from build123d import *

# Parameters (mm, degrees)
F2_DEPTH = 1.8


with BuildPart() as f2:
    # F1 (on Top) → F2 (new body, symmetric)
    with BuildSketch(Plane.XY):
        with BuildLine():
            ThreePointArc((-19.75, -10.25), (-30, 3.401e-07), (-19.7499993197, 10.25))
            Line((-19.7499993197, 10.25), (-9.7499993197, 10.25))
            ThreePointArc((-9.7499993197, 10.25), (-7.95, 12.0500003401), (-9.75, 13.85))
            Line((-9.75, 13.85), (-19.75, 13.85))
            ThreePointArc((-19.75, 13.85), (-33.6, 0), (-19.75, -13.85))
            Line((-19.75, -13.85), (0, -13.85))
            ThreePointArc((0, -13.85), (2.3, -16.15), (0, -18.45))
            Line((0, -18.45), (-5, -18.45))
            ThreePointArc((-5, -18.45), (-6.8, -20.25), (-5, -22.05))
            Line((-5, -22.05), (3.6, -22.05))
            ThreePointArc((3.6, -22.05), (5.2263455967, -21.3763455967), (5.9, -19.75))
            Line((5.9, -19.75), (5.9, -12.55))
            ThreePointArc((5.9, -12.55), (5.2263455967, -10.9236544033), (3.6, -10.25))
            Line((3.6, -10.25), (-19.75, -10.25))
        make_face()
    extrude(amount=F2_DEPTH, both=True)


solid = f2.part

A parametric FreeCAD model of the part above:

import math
import FreeCAD as App
import Part
import Sketcher

V = App.Vector
Q = App.Units.Quantity

doc = App.newDocument("Part")
body = doc.addObject("PartDesign::Body", "Body")

# Sketch on XY plane
sketch1 = body.newObject("Sketcher::SketchObject", "Sketch")
sketch1.AttachmentSupport = (doc.getObject("XY_Plane"), [""])
sketch1.MapMode = "FlatFace"
sketch1.addGeometry([
    Part.ArcOfCircle(Part.Circle(V(-19.8, 0, 0), V(0, 0, 1), 10.2), math.radians(90), math.radians(270)),  # 0
    Part.LineSegment(V(-19.7, 10.2, 0), V(-9.7, 10.2, 0)),  # 1
    Part.ArcOfCircle(Part.Circle(V(-9.8, 12.1, 0), V(0, 0, 1), 1.8), math.radians(-90), math.radians(90)),  # 2
    Part.LineSegment(V(-9.8, 13.8, 0), V(-19.8, 13.8, 0)),  # 3
    Part.ArcOfCircle(Part.Circle(V(-19.8, 0, 0), V(0, 0, 1), 13.8), math.radians(90), math.radians(270)),  # 4
    Part.LineSegment(V(-19.8, -13.8, 0), V(0, -13.8, 0)),  # 5
    Part.ArcOfCircle(Part.Circle(V(0, -16.1, 0), V(0, 0, 1), 2.3), math.radians(-90), math.radians(90)),  # 6
    Part.LineSegment(V(0, -18.4, 0), V(-5, -18.4, 0)),  # 7
    Part.ArcOfCircle(Part.Circle(V(-5, -20.2, 0), V(0, 0, 1), 1.8), math.radians(90), math.radians(270)),  # 8
    Part.LineSegment(V(-5, -22.1, 0), V(3.6, -22.1, 0)),  # 9
    Part.ArcOfCircle(Part.Circle(V(3.6, -19.8, 0), V(0, 0, 1), 2.3), math.radians(-90), math.radians(0)),  # 10
    Part.LineSegment(V(5.9, -19.8, 0), V(5.9, -12.6, 0)),  # 11
    Part.ArcOfCircle(Part.Circle(V(3.6, -12.6, 0), V(0, 0, 1), 2.3), math.radians(0), math.radians(90)),  # 12
    Part.LineSegment(V(3.6, -10.2, 0), V(-19.8, -10.2, 0)),  # 13
], False)
sketch1.addConstraint([
    Sketcher.Constraint("Tangent", 0, 1, 1, 1),
    Sketcher.Constraint("Tangent", 1, 2, 2, 1),
    Sketcher.Constraint("Tangent", 2, 2, 3, 1),
    Sketcher.Constraint("Tangent", 3, 2, 4, 1),
    Sketcher.Constraint("Tangent", 4, 2, 5, 1),
    Sketcher.Constraint("Tangent", 5, 2, 6, 2),
    Sketcher.Constraint("Tangent", 6, 1, 7, 1),
    Sketcher.Constraint("Tangent", 7, 2, 8, 1),
    Sketcher.Constraint("Tangent", 8, 2, 9, 1),
    Sketcher.Constraint("Tangent", 9, 2, 10, 1),
    Sketcher.Constraint("Tangent", 10, 2, 11, 1),
    Sketcher.Constraint("Tangent", 11, 2, 12, 1),
    Sketcher.Constraint("Tangent", 12, 2, 13, 1),
    Sketcher.Constraint("Tangent", 13, 2, 0, 2),
    Sketcher.Constraint("Horizontal", 1),
    Sketcher.Constraint("Horizontal", 3),
    Sketcher.Constraint("Horizontal", 5),
    Sketcher.Constraint("Horizontal", 7),
    Sketcher.Constraint("Horizontal", 9),
    Sketcher.Constraint("Vertical", 11),
    Sketcher.Constraint("Horizontal", 13),
    Sketcher.Constraint("Coincident", 4, 3, 0, 3),
    Sketcher.Constraint("Equal", 2, 8),
    Sketcher.Constraint("Equal", 6, 10),
    Sketcher.Constraint("Equal", 10, 12),
    Sketcher.Constraint("PointOnObject", 0, 3, -1),
    Sketcher.Constraint("PointOnObject", 6, 3, -2),
    Sketcher.Constraint("Radius", 2, Q("1.8 mm")),
    Sketcher.Constraint("Radius", 6, Q("2.3 mm")),
    Sketcher.Constraint("DistanceX", 1, 1, 1, 2, Q("10 mm")),
    Sketcher.Constraint("DistanceX", 7, 2, 7, 1, Q("5 mm")),
    Sketcher.Constraint("Radius", 0, Q("10.25 mm")),
    Sketcher.Constraint("DistanceX", 9, 1, 9, 2, Q("8.6 mm")),
    Sketcher.Constraint("DistanceX", 5, 1, 5, 2, Q("19.75 mm")),
])
pad1 = body.newObject("PartDesign::Pad", "Pad")
pad1.Profile = sketch1
pad1.Length = 3.6
pad1.Midplane = True

doc.recompute()
